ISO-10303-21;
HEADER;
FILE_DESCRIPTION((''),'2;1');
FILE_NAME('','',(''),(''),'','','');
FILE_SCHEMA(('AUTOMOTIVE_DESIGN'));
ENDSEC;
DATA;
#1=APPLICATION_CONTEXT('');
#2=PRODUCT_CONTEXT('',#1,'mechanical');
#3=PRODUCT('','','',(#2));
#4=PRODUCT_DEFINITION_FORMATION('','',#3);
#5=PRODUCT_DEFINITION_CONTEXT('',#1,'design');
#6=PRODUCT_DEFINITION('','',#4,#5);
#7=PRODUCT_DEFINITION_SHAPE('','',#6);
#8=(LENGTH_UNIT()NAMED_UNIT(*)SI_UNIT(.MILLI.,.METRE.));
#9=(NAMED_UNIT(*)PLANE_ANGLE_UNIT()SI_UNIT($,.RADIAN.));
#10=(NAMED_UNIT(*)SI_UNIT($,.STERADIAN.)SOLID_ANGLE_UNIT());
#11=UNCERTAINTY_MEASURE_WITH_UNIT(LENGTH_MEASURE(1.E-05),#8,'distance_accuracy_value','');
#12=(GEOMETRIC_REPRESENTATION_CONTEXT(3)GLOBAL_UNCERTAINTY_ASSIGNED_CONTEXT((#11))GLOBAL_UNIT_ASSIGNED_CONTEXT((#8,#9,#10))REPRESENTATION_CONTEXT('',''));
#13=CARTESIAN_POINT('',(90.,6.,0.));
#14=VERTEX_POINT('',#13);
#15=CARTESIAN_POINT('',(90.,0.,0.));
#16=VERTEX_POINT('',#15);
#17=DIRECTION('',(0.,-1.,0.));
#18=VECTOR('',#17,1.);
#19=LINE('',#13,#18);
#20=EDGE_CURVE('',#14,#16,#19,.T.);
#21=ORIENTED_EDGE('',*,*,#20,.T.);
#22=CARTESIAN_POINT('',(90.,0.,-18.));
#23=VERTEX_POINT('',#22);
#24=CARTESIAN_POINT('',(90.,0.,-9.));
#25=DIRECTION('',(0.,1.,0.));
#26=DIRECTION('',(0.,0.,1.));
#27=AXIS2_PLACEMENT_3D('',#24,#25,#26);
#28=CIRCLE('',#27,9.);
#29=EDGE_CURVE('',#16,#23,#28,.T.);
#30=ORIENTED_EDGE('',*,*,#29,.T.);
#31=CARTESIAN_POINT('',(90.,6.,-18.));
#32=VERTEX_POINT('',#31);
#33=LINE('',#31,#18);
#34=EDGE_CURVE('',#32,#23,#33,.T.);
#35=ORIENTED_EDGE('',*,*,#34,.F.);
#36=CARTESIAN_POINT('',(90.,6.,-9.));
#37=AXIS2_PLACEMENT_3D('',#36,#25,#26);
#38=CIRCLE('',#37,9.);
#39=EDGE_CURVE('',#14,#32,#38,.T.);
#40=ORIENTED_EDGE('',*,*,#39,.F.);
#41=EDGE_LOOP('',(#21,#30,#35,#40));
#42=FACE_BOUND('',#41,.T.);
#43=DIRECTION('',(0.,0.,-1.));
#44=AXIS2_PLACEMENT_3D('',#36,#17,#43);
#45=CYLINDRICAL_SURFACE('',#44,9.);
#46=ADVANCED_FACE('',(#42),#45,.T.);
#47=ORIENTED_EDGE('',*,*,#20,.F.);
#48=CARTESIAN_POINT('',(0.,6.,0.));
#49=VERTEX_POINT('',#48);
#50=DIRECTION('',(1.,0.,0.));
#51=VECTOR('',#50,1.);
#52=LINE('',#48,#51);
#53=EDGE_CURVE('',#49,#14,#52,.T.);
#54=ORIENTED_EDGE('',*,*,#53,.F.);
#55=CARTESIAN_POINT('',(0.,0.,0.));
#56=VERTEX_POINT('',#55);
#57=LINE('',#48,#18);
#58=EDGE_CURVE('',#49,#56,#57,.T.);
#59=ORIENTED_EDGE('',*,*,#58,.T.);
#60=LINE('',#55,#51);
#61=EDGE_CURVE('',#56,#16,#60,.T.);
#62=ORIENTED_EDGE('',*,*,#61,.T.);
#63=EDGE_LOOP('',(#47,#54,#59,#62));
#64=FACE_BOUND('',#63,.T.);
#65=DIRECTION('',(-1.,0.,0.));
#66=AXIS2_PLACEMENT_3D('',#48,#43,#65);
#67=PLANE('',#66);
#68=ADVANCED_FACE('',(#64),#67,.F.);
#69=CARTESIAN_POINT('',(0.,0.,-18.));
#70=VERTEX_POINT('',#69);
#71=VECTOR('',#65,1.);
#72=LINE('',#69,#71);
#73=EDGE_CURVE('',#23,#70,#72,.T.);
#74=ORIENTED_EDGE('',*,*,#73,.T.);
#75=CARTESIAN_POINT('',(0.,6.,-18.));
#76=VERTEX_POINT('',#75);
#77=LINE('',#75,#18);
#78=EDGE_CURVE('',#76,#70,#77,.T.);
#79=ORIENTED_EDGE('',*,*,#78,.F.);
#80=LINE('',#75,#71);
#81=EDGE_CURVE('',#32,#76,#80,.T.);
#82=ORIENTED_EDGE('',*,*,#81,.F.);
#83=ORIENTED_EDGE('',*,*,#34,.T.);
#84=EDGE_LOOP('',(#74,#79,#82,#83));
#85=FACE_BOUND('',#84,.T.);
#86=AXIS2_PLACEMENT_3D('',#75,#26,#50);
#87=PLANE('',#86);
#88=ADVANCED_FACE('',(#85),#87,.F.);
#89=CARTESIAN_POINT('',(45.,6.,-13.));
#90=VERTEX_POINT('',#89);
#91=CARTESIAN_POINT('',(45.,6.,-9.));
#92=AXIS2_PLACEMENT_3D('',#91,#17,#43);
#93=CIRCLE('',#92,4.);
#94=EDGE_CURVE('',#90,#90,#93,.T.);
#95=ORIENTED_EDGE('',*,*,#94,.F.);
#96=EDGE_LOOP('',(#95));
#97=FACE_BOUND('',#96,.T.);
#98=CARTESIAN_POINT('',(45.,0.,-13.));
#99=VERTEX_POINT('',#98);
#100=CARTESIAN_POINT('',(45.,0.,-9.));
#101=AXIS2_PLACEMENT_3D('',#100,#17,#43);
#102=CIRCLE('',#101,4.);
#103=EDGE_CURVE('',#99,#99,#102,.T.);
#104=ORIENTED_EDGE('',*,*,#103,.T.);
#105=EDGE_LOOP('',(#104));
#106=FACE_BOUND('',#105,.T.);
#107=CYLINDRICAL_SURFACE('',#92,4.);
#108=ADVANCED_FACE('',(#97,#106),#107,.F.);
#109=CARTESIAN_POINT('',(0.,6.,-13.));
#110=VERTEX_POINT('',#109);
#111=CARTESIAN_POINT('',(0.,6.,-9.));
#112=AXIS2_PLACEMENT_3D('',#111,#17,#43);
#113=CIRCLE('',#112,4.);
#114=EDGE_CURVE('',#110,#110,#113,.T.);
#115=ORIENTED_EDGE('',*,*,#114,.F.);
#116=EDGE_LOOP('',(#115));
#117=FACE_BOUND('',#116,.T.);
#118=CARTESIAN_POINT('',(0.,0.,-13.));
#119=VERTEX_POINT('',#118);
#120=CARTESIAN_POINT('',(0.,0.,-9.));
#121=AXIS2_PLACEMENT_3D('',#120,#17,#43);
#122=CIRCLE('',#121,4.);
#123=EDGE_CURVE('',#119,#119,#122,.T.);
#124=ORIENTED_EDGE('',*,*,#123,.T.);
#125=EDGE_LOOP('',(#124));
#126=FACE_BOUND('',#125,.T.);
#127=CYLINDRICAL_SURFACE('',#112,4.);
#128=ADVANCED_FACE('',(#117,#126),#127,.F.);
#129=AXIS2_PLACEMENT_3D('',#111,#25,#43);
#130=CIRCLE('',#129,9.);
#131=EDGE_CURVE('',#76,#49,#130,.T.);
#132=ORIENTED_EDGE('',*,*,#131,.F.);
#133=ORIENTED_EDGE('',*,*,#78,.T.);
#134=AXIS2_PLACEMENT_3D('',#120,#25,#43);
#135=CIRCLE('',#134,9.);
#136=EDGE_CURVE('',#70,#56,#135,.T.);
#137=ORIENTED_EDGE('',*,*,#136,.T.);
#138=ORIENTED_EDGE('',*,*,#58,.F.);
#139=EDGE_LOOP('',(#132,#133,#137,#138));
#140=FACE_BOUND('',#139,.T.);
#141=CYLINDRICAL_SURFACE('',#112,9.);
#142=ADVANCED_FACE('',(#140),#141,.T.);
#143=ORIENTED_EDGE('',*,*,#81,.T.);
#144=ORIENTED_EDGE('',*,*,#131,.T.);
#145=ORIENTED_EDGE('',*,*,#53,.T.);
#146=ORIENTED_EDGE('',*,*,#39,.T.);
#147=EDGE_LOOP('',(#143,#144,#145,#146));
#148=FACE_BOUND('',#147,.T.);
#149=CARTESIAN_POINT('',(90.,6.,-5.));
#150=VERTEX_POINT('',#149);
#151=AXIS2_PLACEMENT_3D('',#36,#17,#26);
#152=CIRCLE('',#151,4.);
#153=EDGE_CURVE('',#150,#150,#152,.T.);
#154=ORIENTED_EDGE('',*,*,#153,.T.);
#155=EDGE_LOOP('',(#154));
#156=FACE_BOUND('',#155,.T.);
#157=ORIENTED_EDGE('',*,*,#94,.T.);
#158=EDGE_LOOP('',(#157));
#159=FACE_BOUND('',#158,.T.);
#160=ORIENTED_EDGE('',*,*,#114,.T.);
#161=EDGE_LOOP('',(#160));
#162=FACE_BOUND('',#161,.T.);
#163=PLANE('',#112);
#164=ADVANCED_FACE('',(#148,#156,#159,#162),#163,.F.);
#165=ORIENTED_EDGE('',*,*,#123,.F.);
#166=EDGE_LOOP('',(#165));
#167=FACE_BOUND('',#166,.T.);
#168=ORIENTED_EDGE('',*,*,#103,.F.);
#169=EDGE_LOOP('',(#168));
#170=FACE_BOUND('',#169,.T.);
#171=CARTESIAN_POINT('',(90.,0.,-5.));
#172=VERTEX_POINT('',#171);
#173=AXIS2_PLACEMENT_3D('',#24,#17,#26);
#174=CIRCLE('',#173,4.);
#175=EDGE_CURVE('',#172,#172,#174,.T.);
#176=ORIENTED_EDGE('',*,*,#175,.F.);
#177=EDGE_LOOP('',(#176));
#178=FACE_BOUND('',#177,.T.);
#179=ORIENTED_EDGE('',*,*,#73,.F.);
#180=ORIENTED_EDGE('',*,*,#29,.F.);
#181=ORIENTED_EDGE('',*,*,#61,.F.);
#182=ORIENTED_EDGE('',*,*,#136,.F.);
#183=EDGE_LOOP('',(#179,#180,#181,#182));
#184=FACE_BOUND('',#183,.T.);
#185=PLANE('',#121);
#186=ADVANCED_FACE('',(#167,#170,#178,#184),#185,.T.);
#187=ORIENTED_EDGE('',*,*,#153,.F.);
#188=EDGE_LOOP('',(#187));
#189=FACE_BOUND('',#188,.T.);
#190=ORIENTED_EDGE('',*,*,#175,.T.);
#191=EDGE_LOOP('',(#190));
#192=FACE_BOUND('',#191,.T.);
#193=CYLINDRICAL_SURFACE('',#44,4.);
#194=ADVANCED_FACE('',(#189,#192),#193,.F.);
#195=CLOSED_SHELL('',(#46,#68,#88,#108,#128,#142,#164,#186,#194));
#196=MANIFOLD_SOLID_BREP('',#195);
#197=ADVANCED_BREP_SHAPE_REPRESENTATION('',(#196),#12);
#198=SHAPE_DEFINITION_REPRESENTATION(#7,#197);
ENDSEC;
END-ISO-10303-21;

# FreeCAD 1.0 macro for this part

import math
import FreeCAD as App
import Part
import Sketcher

V = App.Vector

doc = App.newDocument("Part")
body = doc.addObject("PartDesign::Body", "Body")

# Sketch on XZ plane
sketch1 = doc.addObject("Sketcher::SketchObject", "Sketch")
body.addObject(sketch1)
sketch1.AttachmentSupport = (doc.XZ_Plane, [""])
sketch1.MapMode = "FlatFace"
sketch1.addGeometry([
    Part.LineSegment(V(0, 0, 0), V(90, 0, 0)),
    Part.ArcOfCircle(Part.Circle(V(90, -9, 0), V(0, 0, 1), 9), math.radians(-90), math.radians(90)),
    Part.LineSegment(V(90, -18, 0), V(0, -18, 0)),
    Part.ArcOfCircle(Part.Circle(V(0, -9, 0), V(0, 0, 1), 9), math.radians(90), math.radians(270)),
], False)
sketch1.addConstraint([
    Sketcher.Constraint("Tangent", 0, 2, 1, 2),
    Sketcher.Constraint("Tangent", 1, 1, 2, 1),
    Sketcher.Constraint("Tangent", 2, 2, 3, 2),
    Sketcher.Constraint("Tangent", 3, 1, 0, 1),
    Sketcher.Constraint("Horizontal", 0),
    Sketcher.Constraint("Horizontal", 2),
    Sketcher.Constraint("Coincident", 3, 1, -1, 1),
    Sketcher.Constraint("Radius", 1, 9.0),
    Sketcher.Constraint("DistanceX", 0, 1, 0, 2, 90.0),
])
pad1 = doc.addObject("PartDesign::Pad", "Pad")
body.addObject(pad1)
pad1.Profile = sketch1
pad1.Length = 6
pad1.Reversed = True

# Sketch on XZ plane
sketch2 = doc.addObject("Sketcher::SketchObject", "Sketch001")
body.addObject(sketch2)
sketch2.AttachmentSupport = (doc.XZ_Plane, [""])
sketch2.MapMode = "FlatFace"
sketch2.addGeometry([
    Part.Circle(V(0, -9, 0), V(0, 0, 1), 4),
    Part.Circle(V(90, -9, 0), V(0, 0, 1), 4),
    Part.Circle(V(45, -9, 0), V(0, 0, 1), 4),
], False)
sketch2.addConstraint([
    Sketcher.Constraint("Equal", 0, 1),
    Sketcher.Constraint("Equal", 1, 2),
    Sketcher.Constraint("PointOnObject", 0, 3, -2),
    Sketcher.Constraint("Horizontal", 0, 3, 1, 3),
    Sketcher.Constraint("Horizontal", 1, 3, 2, 3),
    Sketcher.Constraint("Diameter", 0, 8.0),
    Sketcher.Constraint("DistanceY", 0, 3, -1, 1, 9.0),
    Sketcher.Constraint("DistanceX", -1, 1, 1, 3, 90.0),
    Sketcher.Constraint("DistanceX", -1, 1, 2, 3, 45.0),
])
pocket1 = doc.addObject("PartDesign::Pocket", "Pocket")
body.addObject(pocket1)
pocket1.Profile = sketch2
pocket1.Length = 6

doc.recompute()
